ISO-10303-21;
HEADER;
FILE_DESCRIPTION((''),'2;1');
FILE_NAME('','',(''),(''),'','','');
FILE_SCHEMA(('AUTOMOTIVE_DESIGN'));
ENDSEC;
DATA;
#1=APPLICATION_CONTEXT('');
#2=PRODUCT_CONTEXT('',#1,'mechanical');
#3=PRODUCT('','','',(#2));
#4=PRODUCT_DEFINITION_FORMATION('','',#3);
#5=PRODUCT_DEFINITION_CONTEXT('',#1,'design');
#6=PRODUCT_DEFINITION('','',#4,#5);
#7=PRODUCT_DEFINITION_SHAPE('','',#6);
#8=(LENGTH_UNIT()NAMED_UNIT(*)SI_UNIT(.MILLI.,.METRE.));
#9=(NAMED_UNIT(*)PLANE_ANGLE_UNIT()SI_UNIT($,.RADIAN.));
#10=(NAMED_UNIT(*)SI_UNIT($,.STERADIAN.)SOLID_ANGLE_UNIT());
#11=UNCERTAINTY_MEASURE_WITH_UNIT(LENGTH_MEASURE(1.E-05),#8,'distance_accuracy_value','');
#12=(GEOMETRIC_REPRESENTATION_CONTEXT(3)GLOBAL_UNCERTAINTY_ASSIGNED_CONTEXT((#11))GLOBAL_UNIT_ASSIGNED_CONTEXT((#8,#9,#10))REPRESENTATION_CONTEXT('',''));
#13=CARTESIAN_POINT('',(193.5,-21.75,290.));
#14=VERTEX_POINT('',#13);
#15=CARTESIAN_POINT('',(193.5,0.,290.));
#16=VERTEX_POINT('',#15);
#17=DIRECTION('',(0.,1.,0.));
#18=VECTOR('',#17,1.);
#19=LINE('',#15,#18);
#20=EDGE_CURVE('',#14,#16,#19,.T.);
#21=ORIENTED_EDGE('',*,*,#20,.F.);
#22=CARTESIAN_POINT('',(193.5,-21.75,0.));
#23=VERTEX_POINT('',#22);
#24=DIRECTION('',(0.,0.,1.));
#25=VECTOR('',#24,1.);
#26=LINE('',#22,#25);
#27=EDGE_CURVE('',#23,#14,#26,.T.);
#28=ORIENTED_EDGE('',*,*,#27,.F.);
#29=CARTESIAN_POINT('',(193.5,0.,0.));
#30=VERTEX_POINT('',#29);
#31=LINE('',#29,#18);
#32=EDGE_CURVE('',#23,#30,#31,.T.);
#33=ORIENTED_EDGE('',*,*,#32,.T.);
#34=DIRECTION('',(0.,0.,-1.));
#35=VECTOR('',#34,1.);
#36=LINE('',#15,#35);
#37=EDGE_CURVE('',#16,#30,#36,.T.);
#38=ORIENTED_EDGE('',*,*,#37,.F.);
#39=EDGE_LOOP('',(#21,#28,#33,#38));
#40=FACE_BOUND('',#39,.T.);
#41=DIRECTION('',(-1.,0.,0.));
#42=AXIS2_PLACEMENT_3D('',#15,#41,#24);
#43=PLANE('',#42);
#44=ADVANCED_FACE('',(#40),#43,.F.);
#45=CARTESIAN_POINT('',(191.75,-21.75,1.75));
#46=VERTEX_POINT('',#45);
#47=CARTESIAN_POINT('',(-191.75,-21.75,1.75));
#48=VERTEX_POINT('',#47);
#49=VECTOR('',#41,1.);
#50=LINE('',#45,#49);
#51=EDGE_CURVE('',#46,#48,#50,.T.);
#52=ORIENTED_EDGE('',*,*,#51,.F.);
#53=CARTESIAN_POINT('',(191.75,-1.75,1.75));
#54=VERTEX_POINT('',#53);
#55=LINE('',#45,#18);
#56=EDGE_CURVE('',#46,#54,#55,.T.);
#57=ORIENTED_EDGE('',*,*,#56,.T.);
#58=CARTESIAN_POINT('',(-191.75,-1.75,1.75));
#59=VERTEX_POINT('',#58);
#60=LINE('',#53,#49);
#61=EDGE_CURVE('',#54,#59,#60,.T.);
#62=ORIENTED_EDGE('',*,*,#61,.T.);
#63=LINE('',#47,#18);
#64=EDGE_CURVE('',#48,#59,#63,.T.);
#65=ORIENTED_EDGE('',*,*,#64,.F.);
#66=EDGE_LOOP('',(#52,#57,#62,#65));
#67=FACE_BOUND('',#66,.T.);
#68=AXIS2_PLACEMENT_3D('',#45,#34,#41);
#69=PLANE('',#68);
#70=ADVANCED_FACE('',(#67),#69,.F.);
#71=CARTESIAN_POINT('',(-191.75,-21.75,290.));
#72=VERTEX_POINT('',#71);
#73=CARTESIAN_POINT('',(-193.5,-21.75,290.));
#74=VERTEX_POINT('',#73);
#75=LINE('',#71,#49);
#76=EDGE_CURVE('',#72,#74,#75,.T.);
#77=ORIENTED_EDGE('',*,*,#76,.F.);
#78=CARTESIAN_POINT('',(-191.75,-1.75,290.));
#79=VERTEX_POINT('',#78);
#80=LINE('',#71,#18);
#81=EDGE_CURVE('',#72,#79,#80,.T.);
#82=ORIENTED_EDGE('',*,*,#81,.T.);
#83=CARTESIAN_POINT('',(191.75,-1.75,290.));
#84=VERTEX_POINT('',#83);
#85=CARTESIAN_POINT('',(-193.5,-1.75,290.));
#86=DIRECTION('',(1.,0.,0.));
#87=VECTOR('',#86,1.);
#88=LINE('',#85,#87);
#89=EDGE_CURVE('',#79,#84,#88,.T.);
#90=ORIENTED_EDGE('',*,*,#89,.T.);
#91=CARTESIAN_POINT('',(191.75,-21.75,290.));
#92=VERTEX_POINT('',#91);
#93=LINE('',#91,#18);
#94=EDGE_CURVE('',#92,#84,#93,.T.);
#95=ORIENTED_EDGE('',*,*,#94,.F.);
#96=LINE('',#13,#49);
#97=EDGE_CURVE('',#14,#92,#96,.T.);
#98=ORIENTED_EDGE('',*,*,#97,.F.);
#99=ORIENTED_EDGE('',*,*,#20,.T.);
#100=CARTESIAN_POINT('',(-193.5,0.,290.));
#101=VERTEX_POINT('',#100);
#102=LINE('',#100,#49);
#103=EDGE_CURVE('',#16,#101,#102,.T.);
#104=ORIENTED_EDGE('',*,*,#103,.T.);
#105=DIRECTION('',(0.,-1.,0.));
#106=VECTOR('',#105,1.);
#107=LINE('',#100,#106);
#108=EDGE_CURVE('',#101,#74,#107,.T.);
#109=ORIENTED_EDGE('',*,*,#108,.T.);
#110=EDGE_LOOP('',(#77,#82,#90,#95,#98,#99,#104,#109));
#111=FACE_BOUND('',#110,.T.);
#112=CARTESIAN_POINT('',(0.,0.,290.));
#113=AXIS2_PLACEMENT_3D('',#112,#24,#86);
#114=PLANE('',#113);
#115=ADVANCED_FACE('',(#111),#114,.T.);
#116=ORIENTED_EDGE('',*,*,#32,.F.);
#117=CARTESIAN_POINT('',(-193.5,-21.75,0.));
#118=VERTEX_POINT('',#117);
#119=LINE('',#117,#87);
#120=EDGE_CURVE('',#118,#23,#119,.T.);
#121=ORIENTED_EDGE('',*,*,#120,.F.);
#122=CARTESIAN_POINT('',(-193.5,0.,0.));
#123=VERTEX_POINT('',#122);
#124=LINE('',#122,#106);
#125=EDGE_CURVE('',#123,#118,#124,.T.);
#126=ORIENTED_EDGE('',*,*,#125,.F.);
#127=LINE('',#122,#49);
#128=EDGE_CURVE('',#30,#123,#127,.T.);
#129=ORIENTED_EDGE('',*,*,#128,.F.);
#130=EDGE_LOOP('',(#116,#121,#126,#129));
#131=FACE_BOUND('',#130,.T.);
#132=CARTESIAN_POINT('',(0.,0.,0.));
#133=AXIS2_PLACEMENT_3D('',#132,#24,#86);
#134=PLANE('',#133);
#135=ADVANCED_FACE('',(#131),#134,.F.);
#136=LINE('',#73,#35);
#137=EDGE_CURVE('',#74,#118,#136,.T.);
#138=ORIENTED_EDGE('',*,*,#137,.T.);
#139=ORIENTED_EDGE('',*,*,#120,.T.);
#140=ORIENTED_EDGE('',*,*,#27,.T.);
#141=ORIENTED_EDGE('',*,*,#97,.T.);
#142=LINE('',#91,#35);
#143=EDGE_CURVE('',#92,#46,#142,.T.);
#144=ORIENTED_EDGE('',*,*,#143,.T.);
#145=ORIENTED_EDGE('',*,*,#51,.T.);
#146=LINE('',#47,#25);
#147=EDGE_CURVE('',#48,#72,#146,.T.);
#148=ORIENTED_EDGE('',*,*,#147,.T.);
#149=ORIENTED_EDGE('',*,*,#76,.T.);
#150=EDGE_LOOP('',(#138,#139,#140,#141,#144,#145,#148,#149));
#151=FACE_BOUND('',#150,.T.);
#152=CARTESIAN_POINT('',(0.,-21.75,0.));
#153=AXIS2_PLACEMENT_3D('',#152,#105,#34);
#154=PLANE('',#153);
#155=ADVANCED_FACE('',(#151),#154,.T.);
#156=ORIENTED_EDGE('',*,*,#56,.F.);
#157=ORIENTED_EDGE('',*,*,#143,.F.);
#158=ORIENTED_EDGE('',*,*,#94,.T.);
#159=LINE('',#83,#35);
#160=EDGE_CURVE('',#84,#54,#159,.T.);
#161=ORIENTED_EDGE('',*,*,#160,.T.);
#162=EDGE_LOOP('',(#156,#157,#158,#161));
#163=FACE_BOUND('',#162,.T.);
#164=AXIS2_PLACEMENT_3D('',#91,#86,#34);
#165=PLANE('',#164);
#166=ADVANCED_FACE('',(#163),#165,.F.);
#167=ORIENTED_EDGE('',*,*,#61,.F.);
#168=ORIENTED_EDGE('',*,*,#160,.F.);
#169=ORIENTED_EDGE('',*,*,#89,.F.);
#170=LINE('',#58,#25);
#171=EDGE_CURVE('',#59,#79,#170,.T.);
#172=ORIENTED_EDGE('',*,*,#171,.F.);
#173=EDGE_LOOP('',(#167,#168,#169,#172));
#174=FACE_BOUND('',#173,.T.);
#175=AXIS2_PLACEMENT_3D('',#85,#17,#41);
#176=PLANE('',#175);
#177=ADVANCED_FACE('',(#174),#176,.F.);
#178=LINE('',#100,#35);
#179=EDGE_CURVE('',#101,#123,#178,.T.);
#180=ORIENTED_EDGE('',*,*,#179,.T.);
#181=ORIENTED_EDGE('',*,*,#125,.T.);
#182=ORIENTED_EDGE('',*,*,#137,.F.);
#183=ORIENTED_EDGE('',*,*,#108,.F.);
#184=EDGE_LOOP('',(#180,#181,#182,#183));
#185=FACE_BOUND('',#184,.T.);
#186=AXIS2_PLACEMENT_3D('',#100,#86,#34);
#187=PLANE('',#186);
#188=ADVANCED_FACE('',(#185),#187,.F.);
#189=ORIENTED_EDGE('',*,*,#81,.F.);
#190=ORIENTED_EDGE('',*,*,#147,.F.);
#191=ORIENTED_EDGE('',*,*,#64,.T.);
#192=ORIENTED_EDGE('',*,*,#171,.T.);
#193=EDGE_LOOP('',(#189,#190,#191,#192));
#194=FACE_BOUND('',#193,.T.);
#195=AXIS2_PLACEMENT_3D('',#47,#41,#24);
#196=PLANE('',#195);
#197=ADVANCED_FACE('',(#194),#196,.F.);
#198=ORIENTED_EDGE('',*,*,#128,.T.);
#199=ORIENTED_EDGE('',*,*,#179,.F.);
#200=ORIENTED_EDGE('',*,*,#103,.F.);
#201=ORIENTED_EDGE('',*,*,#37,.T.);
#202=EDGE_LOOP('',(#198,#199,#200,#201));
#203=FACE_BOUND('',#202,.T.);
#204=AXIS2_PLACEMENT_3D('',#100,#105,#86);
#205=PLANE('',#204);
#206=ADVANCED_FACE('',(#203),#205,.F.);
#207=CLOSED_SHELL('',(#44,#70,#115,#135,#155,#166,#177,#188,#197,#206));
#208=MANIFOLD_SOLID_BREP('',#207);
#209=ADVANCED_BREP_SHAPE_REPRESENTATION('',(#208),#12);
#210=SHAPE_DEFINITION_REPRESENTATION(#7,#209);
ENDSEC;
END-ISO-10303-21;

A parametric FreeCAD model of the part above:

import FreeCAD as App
import Part
import Sketcher

V = App.Vector
Q = App.Units.Quantity

doc = App.newDocument("Part")
params = doc.addObject("Spreadsheet::Sheet", "Params")
for row, (alias, value) in enumerate([
    ("sketch1_width", "387 mm"),
    ("sketch1_height", "1.75 mm"),
    ("pad1_length", "290 mm"),
    ("sketch2_width", "387 mm"),
    ("sketch2_height", "290 mm"),
    ("sketch2_width2", "383.5 mm"),
    ("sketch2_height2", "288.25 mm"),
    ("pad2_length", "20 mm"),
], start=1):
    params.set(f"A{row}", alias)
    params.set(f"B{row}", "=" + value)
    params.setAlias(f"B{row}", alias)

body = doc.addObject("PartDesign::Body", "Body")

# Sketch on XY plane
sketch1 = body.newObject("Sketcher::SketchObject", "Sketch")
sketch1.AttachmentSupport = (doc.getObject("XY_Plane"), [""])
sketch1.MapMode = "FlatFace"
sketch1.addGeometry([
    Part.LineSegment(V(-193.5, 0, 0), V(-193.5, -1.8, 0)),
    Part.LineSegment(V(-193.5, -1.8, 0), V(193.5, -1.8, 0)),
    Part.LineSegment(V(193.5, -1.8, 0), V(193.5, 0, 0)),
    Part.LineSegment(V(193.5, 0, 0), V(-193.5, 0, 0)),
], False)
sketch1.addConstraint([
    Sketcher.Constraint("Coincident", 0, 2, 1, 1),
    Sketcher.Constraint("Coincident", 1, 2, 2, 1),
    Sketcher.Constraint("Coincident", 2, 2, 3, 1),
    Sketcher.Constraint("Coincident", 3, 2, 0, 1),
    Sketcher.Constraint("Vertical", 0),
    Sketcher.Constraint("Horizontal", 1),
    Sketcher.Constraint("Vertical", 2),
    Sketcher.Constraint("Horizontal", 3),
    Sketcher.Constraint("Symmetric", 2, 2, 3, 2, -1, 1),
    Sketcher.Constraint("DistanceX", 1, 1, 1, 2, Q("387 mm")),
    Sketcher.Constraint("DistanceY", 0, 2, 0, 1, Q("1.75 mm")),
])
sketch1.setExpression("Constraints[9]", "Params.sketch1_width")
sketch1.setExpression("Constraints[10]", "Params.sketch1_height")
pad1 = body.newObject("PartDesign::Pad", "Pad")
pad1.Profile = sketch1
pad1.setExpression("Length", "Params.pad1_length")

# Sketch on XZ plane
sketch2 = body.newObject("Sketcher::SketchObject", "Sketch001")
sketch2.AttachmentSupport = (doc.getObject("XZ_Plane"), [""])
sketch2.MapMode = "FlatFace"
sketch2.AttachmentOffset = App.Placement(V(0, 0, 1.75), App.Rotation())
sketch2.addGeometry([
    Part.LineSegment(V(-193.5, 290, 0), V(-193.5, 0, 0)),  # 0
    Part.LineSegment(V(-193.5, 0, 0), V(193.5, 0, 0)),  # 1
    Part.LineSegment(V(193.5, 0, 0), V(193.5, 290, 0)),  # 2
    Part.LineSegment(V(193.5, 290, 0), V(191.8, 290, 0)),  # 3
    Part.LineSegment(V(191.8, 290, 0), V(191.8, 1.8, 0)),  # 4
    Part.LineSegment(V(191.8, 1.8, 0), V(-191.8, 1.8, 0)),  # 5
    Part.LineSegment(V(-191.8, 1.8, 0), V(-191.8, 290, 0)),  # 6
    Part.LineSegment(V(-191.8, 290, 0), V(-193.5, 290, 0)),  # 7
], False)
sketch2.addConstraint([
    Sketcher.Constraint("Coincident", 0, 2, 1, 1),
    Sketcher.Constraint("Coincident", 1, 2, 2, 1),
    Sketcher.Constraint("Coincident", 2, 2, 3, 1),
    Sketcher.Constraint("Coincident", 3, 2, 4, 1),
    Sketcher.Constraint("Coincident", 4, 2, 5, 1),
    Sketcher.Constraint("Coincident", 5, 2, 6, 1),
    Sketcher.Constraint("Coincident", 6, 2, 7, 1),
    Sketcher.Constraint("Coincident", 7, 2, 0, 1),
    Sketcher.Constraint("Vertical", 0),
    Sketcher.Constraint("Horizontal", 1),
    Sketcher.Constraint("Vertical", 2),
    Sketcher.Constraint("Horizontal", 3),
    Sketcher.Constraint("Vertical", 4),
    Sketcher.Constraint("Horizontal", 5),
    Sketcher.Constraint("Vertical", 6),
    Sketcher.Constraint("Horizontal", 7),
    Sketcher.Constraint("Symmetric", 0, 2, 1, 2, -1, 1),
    Sketcher.Constraint("Symmetric", 3, 2, 6, 2, -2),
    Sketcher.Constraint("DistanceX", 1, 1, 1, 2, Q("387 mm")),
    Sketcher.Constraint("DistanceY", 0, 2, 0, 1, Q("290 mm")),
    Sketcher.Constraint("DistanceX", 5, 2, 5, 1, Q("383.5 mm")),
    Sketcher.Constraint("DistanceY", 4, 2, 4, 1, Q("288.25 mm")),
])
sketch2.setExpression("Constraints[18]", "Params.sketch2_width")
sketch2.setExpression("Constraints[19]", "Params.sketch2_height")
sketch2.setExpression("Constraints[20]", "Params.sketch2_width2")
sketch2.setExpression("Constraints[21]", "Params.sketch2_height2")
pad2 = body.newObject("PartDesign::Pad", "Pad001")
pad2.Profile = sketch2
pad2.setExpression("Length", "Params.pad2_length")

doc.recompute()
